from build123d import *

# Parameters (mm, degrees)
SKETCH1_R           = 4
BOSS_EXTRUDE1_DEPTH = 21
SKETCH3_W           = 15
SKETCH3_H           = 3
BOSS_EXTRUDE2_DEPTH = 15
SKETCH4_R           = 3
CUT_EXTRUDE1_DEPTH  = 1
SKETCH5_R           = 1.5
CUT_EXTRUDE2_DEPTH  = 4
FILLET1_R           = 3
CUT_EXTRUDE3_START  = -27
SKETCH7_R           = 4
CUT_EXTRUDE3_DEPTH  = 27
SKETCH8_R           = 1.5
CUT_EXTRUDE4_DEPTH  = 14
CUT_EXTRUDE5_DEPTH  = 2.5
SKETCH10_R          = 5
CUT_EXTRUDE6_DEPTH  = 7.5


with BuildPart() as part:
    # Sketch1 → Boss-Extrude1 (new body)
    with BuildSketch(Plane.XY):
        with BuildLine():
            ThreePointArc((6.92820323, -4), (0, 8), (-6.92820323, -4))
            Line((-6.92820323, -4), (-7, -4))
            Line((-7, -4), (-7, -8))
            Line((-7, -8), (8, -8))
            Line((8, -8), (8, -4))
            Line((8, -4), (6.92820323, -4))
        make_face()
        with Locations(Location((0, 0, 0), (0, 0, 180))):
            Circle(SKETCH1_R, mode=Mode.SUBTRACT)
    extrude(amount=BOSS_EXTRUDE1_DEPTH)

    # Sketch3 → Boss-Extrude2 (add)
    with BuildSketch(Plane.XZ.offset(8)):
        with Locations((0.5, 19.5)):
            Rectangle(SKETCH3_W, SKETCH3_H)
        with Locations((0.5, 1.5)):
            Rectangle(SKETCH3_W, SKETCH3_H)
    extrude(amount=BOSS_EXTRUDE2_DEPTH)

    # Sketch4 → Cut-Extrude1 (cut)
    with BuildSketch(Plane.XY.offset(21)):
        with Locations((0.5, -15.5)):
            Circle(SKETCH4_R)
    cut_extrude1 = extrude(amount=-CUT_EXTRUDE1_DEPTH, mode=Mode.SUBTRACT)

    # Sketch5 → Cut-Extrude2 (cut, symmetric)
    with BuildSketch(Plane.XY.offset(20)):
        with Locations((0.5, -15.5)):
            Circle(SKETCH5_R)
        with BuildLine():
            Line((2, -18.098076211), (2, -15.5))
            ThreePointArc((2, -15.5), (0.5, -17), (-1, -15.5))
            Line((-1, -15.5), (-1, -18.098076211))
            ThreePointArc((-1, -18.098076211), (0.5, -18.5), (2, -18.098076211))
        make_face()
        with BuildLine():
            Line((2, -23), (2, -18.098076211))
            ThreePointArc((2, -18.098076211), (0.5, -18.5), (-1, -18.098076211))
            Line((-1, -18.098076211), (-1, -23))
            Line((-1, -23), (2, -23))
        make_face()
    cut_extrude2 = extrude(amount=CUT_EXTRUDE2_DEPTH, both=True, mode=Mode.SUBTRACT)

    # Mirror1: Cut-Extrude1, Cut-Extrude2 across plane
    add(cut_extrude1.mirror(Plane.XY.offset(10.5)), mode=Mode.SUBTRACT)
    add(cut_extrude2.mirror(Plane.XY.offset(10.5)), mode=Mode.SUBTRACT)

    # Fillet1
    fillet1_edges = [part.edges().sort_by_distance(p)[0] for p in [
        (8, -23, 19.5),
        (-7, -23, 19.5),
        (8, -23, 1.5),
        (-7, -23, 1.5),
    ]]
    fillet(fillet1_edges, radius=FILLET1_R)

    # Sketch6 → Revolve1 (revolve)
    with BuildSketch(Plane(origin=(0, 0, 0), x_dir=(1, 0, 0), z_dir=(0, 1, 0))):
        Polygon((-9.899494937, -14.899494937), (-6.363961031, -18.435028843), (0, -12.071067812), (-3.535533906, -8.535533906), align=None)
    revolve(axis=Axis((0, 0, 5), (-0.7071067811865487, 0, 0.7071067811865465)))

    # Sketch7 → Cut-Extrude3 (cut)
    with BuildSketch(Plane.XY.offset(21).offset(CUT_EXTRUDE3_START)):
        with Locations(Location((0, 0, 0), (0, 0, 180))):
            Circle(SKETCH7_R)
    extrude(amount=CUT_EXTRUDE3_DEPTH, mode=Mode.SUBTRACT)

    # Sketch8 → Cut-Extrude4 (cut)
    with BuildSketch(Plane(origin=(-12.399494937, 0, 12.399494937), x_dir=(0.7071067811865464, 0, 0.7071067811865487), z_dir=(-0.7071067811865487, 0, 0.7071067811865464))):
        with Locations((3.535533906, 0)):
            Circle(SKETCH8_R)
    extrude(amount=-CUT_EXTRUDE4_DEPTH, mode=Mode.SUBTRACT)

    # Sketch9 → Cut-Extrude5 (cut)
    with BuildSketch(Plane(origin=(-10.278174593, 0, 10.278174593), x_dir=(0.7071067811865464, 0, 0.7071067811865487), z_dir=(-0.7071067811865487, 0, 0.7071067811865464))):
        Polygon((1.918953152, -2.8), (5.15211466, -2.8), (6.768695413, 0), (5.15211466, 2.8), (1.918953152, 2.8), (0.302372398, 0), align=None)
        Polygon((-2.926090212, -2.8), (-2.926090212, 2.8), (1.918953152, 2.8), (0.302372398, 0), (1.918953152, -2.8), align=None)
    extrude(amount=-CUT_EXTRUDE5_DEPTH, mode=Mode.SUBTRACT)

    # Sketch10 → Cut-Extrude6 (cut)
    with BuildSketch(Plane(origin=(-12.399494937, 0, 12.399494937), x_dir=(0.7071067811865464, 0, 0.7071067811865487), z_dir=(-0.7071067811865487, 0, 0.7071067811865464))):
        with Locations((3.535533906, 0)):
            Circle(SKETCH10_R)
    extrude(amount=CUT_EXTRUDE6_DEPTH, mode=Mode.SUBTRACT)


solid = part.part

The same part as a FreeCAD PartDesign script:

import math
import FreeCAD as App
import Part
import Sketcher
from FreeCAD import Vector
Q = App.Units.Quantity


def edges_at(feature, points):
    """Names of the edges that pass closest to the given points."""
    edges = feature.Shape.Edges
    near = lambda p: min(range(len(edges)), key=lambda i: edges[i].distToShape(Part.Vertex(*p))[0])
    return sorted({f"Edge{near(p) + 1}" for p in points})


def add_polygon(sketch, points):
    """Adds a closed chain of lines whose ends are joined by coincident constraints."""
    first, n = sketch.GeometryCount, len(points)
    for a, b in zip(points, points[1:] + points[:1]):
        sketch.addGeometry(Part.LineSegment(App.Vector(*a, 0), App.Vector(*b, 0)), False)
    for i in range(n):
        sketch.addConstraint(Sketcher.Constraint("Coincident", first + i, 2, first + (i + 1) % n, 1))

doc = App.newDocument("Part")
body = doc.addObject("PartDesign::Body", "Body")

sketch1 = body.newObject("Sketcher::SketchObject", "Sketch")
sketch1.AttachmentSupport = (doc.getObject("XY_Plane"), [""])
sketch1.MapMode = "FlatFace"
sketch1.addGeometry([
    Part.ArcOfCircle(Part.Circle(Vector(0, 0, 0), Vector(0, 0, 1), 8), math.radians(-30), math.radians(210)),
    Part.LineSegment(Vector(-6.93, -4, 0), Vector(-7, -4, 0)),
    Part.LineSegment(Vector(-7, -4, 0), Vector(-7, -8, 0)),
    Part.LineSegment(Vector(-7, -8, 0), Vector(8, -8, 0)),
    Part.LineSegment(Vector(8, -8, 0), Vector(8, -4, 0)),
    Part.LineSegment(Vector(8, -4, 0), Vector(6.93, -4, 0)),
    Part.Circle(Vector(0, 0, 0), Vector(0, 0, 1), 4),
], False)
sketch1.addConstraint([
    Sketcher.Constraint("Coincident", 0, 2, 1, 1),
    Sketcher.Constraint("Coincident", 1, 2, 2, 1),
    Sketcher.Constraint("Coincident", 2, 2, 3, 1),
    Sketcher.Constraint("Coincident", 3, 2, 4, 1),
    Sketcher.Constraint("Coincident", 4, 2, 5, 1),
    Sketcher.Constraint("Coincident", 5, 2, 0, 1),
    Sketcher.Constraint("Horizontal", 1),
    Sketcher.Constraint("Vertical", 2),
    Sketcher.Constraint("Horizontal", 3),
    Sketcher.Constraint("Vertical", 4),
    Sketcher.Constraint("Horizontal", 5),
    Sketcher.Constraint("Coincident", 0, 3, -1, 1),
    Sketcher.Constraint("Coincident", 6, 3, -1, 1),
    Sketcher.Constraint("Horizontal", 1, 2, 4, 2),
    Sketcher.Constraint("Diameter", 6, Q("8 mm")),
    Sketcher.Constraint("Radius", 0, Q("8 mm")),
    Sketcher.Constraint("DistanceX", 3, 1, 3, 2, Q("15 mm")),
    Sketcher.Constraint("DistanceY", 2, 2, 2, 1, Q("4 mm")),
    Sketcher.Constraint("DistanceY", 0, 2, -1, 1, Q("4 mm")),
    Sketcher.Constraint("DistanceX", 1, 2, -1, 1, Q("7 mm")),
])
pad1 = body.newObject("PartDesign::Pad", "Pad")
pad1.Profile = sketch1
pad1.Length = 21

sketch2 = body.newObject("Sketcher::SketchObject", "Sketch001")
sketch2.AttachmentSupport = (doc.getObject("XZ_Plane"), [""])
sketch2.MapMode = "FlatFace"
sketch2.AttachmentOffset = App.Placement(Vector(0, 0, 8), App.Rotation())
add_polygon(sketch2, [(-7, 21), (-7, 18), (8, 18), (8, 21)])
add_polygon(sketch2, [(-7, 3), (-7, 0), (8, 0), (8, 3)])
sketch2.addConstraint([
    Sketcher.Constraint("Vertical", 0),
    Sketcher.Constraint("Horizontal", 1),
    Sketcher.Constraint("Vertical", 2),
    Sketcher.Constraint("Horizontal", 3),
    Sketcher.Constraint("Vertical", 4),
    Sketcher.Constraint("Horizontal", 5),
    Sketcher.Constraint("Vertical", 6),
    Sketcher.Constraint("Horizontal", 7),
    Sketcher.Constraint("PointOnObject", 4, 2, -1),
    Sketcher.Constraint("Vertical", 3, 2, 4, 2),
    Sketcher.Constraint("Vertical", 2, 2, 5, 2),
    Sketcher.Constraint("Equal", 2, 4),
    Sketcher.Constraint("DistanceX", 1, 1, 1, 2, Q("15 mm")),
    Sketcher.Constraint("DistanceY", 0, 2, 0, 1, Q("3 mm")),
    Sketcher.Constraint("DistanceX", 0, 2, -1, 1, Q("7 mm")),
    Sketcher.Constraint("DistanceY", -1, 1, 0, 2, Q("18 mm")),
])
pad2 = body.newObject("PartDesign::Pad", "Pad001")
pad2.Profile = sketch2
pad2.Length = 15

sketch3 = body.newObject("Sketcher::SketchObject", "Sketch002")
sketch3.AttachmentSupport = (doc.getObject("XY_Plane"), [""])
sketch3.MapMode = "FlatFace"
sketch3.AttachmentOffset = App.Placement(Vector(0, 0, 21), App.Rotation())
sketch3.addGeometry(Part.Circle(Vector(0.5, -15.5, 0), Vector(0, 0, 1), 3), False)
sketch3.addConstraint([
    Sketcher.Constraint("Diameter", 0, Q("6 mm")),
    Sketcher.Constraint("DistanceX", -1, 1, 0, 3, Q("0.5 mm")),
    Sketcher.Constraint("DistanceY", 0, 3, -1, 1, Q("15.5 mm")),
])
pocket1 = body.newObject("PartDesign::Pocket", "Pocket")
pocket1.Profile = sketch3
pocket1.Length = 1

sketch4 = body.newObject("Sketcher::SketchObject", "Sketch003")
sketch4.AttachmentSupport = (doc.getObject("XY_Plane"), [""])
sketch4.MapMode = "FlatFace"
sketch4.AttachmentOffset = App.Placement(Vector(0, 0, 20), App.Rotation())
sketch4.addGeometry([
    Part.ArcOfCircle(Part.Circle(Vector(0.5, -15.5, 0), Vector(0, 0, 1), 1.5), math.radians(0), math.radians(180)),
    Part.LineSegment(Vector(-1, -15.5, 0), Vector(-1, -23, 0)),
    Part.LineSegment(Vector(-1, -23, 0), Vector(2, -23, 0)),
    Part.LineSegment(Vector(2, -23, 0), Vector(2, -15.5, 0)),
], False)
sketch4.addConstraint([
    Sketcher.Constraint("Tangent", 0, 2, 1, 1),
    Sketcher.Constraint("Coincident", 1, 2, 2, 1),
    Sketcher.Constraint("Coincident", 2, 2, 3, 1),
    Sketcher.Constraint("Tangent", 3, 2, 0, 1),
    Sketcher.Constraint("Vertical", 1),
    Sketcher.Constraint("Horizontal", 2),
    Sketcher.Constraint("Vertical", 3),
    Sketcher.Constraint("Radius", 0, Q("1.5 mm")),
    Sketcher.Constraint("DistanceY", 1, 2, 1, 1, Q("7.5 mm")),
    Sketcher.Constraint("DistanceX", 0, 2, -1, 1, Q("1 mm")),
    Sketcher.Constraint("DistanceY", 1, 2, -1, 1, Q("23 mm")),
])
pocket2 = body.newObject("PartDesign::Pocket", "Pocket001")
pocket2.Profile = sketch4
pocket2.Length = 8
pocket2.Midplane = True
doc.recompute()

datumplane = body.newObject("PartDesign::Plane", "DatumPlane")
datumplane.AttachmentSupport = (doc.getObject("XY_Plane"), [""])
datumplane.MapMode = "FlatFace"
datumplane.AttachmentOffset = App.Placement(Vector(0, 0, 10.5), App.Rotation())
mirrored = body.newObject("PartDesign::Mirrored", "Mirrored")
mirrored.Originals = [pocket1, pocket2]
mirrored.MirrorPlane = (datumplane, [""])
body.Tip = mirrored
doc.recompute()

fillet = body.newObject("PartDesign::Fillet", "Fillet")
fillet.Base = (mirrored, edges_at(mirrored, [
    (8, -23, 19.5),
    (-7, -23, 19.5),
    (8, -23, 1.5),
    (-7, -23, 1.5),
]))
fillet.Radius = 3

sketch5 = body.newObject("Sketcher::SketchObject", "Sketch004")
sketch5.AttachmentSupport = (doc.getObject("XZ_Plane"), [""])
sketch5.MapMode = "FlatFace"
add_polygon(sketch5, [(-10, 15), (-6, 18), (0, 12), (-4, 9)])
sketch5.addGeometry(Part.LineSegment(Vector(-4, 9, 0), Vector(-10, 15, 0)), True)
sketch5.addConstraint([
    Sketcher.Constraint("Coincident", 4, 1, 2, 2),
    Sketcher.Constraint("Coincident", 4, 2, 3, 2),
    Sketcher.Constraint("PointOnObject", 1, 2, -2),
    Sketcher.Constraint("Perpendicular", 0, 1),
    Sketcher.Constraint("Perpendicular", 1, 2),
    Sketcher.Constraint("Perpendicular", 2, 3),
    Sketcher.Constraint("Angle", 0, Q("45 deg")),
    Sketcher.Constraint("Distance", 0, Q("5 mm")),
    Sketcher.Constraint("Distance", 1, Q("9 mm")),
    Sketcher.Constraint("DistanceY", -1, 1, 0, 2, Q("18.435029 mm")),
])
revolution = body.newObject("PartDesign::Revolution", "Revolution")
revolution.Profile = sketch5
revolution.ReferenceAxis = (sketch5, ["Axis0"])
revolution.Angle = 360

sketch6 = body.newObject("Sketcher::SketchObject", "Sketch005")
sketch6.AttachmentSupport = (doc.getObject("XY_Plane"), [""])
sketch6.MapMode = "FlatFace"
sketch6.AttachmentOffset = App.Placement(Vector(0, 0, -6), App.Rotation())
sketch6.addGeometry(Part.Circle(Vector(0, 0, 0), Vector(0, 0, 1), 4), False)
sketch6.addConstraint([
    Sketcher.Constraint("Coincident", 0, 3, -1, 1),
    Sketcher.Constraint("Diameter", 0, Q("8 mm")),
])
pocket3 = body.newObject("PartDesign::Pocket", "Pocket002")
pocket3.Profile = sketch6
pocket3.Length = 27
pocket3.Reversed = True

sketch7 = body.newObject("Sketcher::SketchObject", "Sketch006")
sketch7.Placement = App.Placement(Vector(-12.399495, 0, 12.399495), App.Rotation(Vector(0.707106781, 0, 0.707106781), Vector(0, 0.999999999, 0), Vector(-0.707106781, 0, 0.707106781), "ZXY"))
sketch7.addGeometry(Part.Circle(Vector(3.5, 0, 0), Vector(0, 0, 1), 1.5), False)
sketch7.addConstraint([
    Sketcher.Constraint("PointOnObject", 0, 3, -1),
    Sketcher.Constraint("Diameter", 0, Q("3 mm")),
    Sketcher.Constraint("DistanceX", -1, 1, 0, 3, Q("3.535534 mm")),
])
pocket4 = body.newObject("PartDesign::Pocket", "Pocket003")
pocket4.Profile = sketch7
pocket4.Length = 14

sketch8 = body.newObject("Sketcher::SketchObject", "Sketch007")
sketch8.Placement = App.Placement(Vector(-10.278175, 0, 10.278175), App.Rotation(Vector(0.707106781, 0, 0.707106781), Vector(0, 0.999999999, 0), Vector(-0.707106781, 0, 0.707106781), "ZXY"))
add_polygon(sketch8, [(5.2, -2.8), (6.8, 0), (5.2, 2.8), (-2.9, 2.8), (-2.9, -2.8)])
sketch8.addConstraint([
    Sketcher.Constraint("Horizontal", 2),
    Sketcher.Constraint("Vertical", 3),
    Sketcher.Constraint("Horizontal", 4),
    Sketcher.Constraint("Symmetric", 1, 2, 4, 2, -1),
    Sketcher.Constraint("PointOnObject", 0, 2, -1),
    Sketcher.Constraint("Angle", 0, Q("60 deg")),
    Sketcher.Constraint("DistanceY", 3, 2, 3, 1, Q("5.6 mm")),
    Sketcher.Constraint("DistanceX", 2, 2, 2, 1, Q("8.078205 mm")),
    Sketcher.Constraint("DistanceX", 2, 2, -1, 1, Q("2.92609 mm")),
])
pocket5 = body.newObject("PartDesign::Pocket", "Pocket004")
pocket5.Profile = sketch8
pocket5.Length = 2.5

sketch9 = body.newObject("Sketcher::SketchObject", "Sketch008")
sketch9.Placement = App.Placement(Vector(-12.399495, 0, 12.399495), App.Rotation(Vector(0.707106781, 0, 0.707106781), Vector(0, 0.999999999, 0), Vector(-0.707106781, 0, 0.707106781), "ZXY"))
sketch9.addGeometry(Part.Circle(Vector(4, 0, 0), Vector(0, 0, 1), 5), False)
sketch9.addConstraint([
    Sketcher.Constraint("PointOnObject", 0, 3, -1),
    Sketcher.Constraint("Diameter", 0, Q("10 mm")),
    Sketcher.Constraint("DistanceX", -1, 1, 0, 3, Q("3.535534 mm")),
])
pocket6 = body.newObject("PartDesign::Pocket", "Pocket005")
pocket6.Profile = sketch9
pocket6.Length = 7.5
pocket6.Reversed = True

doc.recompute()
